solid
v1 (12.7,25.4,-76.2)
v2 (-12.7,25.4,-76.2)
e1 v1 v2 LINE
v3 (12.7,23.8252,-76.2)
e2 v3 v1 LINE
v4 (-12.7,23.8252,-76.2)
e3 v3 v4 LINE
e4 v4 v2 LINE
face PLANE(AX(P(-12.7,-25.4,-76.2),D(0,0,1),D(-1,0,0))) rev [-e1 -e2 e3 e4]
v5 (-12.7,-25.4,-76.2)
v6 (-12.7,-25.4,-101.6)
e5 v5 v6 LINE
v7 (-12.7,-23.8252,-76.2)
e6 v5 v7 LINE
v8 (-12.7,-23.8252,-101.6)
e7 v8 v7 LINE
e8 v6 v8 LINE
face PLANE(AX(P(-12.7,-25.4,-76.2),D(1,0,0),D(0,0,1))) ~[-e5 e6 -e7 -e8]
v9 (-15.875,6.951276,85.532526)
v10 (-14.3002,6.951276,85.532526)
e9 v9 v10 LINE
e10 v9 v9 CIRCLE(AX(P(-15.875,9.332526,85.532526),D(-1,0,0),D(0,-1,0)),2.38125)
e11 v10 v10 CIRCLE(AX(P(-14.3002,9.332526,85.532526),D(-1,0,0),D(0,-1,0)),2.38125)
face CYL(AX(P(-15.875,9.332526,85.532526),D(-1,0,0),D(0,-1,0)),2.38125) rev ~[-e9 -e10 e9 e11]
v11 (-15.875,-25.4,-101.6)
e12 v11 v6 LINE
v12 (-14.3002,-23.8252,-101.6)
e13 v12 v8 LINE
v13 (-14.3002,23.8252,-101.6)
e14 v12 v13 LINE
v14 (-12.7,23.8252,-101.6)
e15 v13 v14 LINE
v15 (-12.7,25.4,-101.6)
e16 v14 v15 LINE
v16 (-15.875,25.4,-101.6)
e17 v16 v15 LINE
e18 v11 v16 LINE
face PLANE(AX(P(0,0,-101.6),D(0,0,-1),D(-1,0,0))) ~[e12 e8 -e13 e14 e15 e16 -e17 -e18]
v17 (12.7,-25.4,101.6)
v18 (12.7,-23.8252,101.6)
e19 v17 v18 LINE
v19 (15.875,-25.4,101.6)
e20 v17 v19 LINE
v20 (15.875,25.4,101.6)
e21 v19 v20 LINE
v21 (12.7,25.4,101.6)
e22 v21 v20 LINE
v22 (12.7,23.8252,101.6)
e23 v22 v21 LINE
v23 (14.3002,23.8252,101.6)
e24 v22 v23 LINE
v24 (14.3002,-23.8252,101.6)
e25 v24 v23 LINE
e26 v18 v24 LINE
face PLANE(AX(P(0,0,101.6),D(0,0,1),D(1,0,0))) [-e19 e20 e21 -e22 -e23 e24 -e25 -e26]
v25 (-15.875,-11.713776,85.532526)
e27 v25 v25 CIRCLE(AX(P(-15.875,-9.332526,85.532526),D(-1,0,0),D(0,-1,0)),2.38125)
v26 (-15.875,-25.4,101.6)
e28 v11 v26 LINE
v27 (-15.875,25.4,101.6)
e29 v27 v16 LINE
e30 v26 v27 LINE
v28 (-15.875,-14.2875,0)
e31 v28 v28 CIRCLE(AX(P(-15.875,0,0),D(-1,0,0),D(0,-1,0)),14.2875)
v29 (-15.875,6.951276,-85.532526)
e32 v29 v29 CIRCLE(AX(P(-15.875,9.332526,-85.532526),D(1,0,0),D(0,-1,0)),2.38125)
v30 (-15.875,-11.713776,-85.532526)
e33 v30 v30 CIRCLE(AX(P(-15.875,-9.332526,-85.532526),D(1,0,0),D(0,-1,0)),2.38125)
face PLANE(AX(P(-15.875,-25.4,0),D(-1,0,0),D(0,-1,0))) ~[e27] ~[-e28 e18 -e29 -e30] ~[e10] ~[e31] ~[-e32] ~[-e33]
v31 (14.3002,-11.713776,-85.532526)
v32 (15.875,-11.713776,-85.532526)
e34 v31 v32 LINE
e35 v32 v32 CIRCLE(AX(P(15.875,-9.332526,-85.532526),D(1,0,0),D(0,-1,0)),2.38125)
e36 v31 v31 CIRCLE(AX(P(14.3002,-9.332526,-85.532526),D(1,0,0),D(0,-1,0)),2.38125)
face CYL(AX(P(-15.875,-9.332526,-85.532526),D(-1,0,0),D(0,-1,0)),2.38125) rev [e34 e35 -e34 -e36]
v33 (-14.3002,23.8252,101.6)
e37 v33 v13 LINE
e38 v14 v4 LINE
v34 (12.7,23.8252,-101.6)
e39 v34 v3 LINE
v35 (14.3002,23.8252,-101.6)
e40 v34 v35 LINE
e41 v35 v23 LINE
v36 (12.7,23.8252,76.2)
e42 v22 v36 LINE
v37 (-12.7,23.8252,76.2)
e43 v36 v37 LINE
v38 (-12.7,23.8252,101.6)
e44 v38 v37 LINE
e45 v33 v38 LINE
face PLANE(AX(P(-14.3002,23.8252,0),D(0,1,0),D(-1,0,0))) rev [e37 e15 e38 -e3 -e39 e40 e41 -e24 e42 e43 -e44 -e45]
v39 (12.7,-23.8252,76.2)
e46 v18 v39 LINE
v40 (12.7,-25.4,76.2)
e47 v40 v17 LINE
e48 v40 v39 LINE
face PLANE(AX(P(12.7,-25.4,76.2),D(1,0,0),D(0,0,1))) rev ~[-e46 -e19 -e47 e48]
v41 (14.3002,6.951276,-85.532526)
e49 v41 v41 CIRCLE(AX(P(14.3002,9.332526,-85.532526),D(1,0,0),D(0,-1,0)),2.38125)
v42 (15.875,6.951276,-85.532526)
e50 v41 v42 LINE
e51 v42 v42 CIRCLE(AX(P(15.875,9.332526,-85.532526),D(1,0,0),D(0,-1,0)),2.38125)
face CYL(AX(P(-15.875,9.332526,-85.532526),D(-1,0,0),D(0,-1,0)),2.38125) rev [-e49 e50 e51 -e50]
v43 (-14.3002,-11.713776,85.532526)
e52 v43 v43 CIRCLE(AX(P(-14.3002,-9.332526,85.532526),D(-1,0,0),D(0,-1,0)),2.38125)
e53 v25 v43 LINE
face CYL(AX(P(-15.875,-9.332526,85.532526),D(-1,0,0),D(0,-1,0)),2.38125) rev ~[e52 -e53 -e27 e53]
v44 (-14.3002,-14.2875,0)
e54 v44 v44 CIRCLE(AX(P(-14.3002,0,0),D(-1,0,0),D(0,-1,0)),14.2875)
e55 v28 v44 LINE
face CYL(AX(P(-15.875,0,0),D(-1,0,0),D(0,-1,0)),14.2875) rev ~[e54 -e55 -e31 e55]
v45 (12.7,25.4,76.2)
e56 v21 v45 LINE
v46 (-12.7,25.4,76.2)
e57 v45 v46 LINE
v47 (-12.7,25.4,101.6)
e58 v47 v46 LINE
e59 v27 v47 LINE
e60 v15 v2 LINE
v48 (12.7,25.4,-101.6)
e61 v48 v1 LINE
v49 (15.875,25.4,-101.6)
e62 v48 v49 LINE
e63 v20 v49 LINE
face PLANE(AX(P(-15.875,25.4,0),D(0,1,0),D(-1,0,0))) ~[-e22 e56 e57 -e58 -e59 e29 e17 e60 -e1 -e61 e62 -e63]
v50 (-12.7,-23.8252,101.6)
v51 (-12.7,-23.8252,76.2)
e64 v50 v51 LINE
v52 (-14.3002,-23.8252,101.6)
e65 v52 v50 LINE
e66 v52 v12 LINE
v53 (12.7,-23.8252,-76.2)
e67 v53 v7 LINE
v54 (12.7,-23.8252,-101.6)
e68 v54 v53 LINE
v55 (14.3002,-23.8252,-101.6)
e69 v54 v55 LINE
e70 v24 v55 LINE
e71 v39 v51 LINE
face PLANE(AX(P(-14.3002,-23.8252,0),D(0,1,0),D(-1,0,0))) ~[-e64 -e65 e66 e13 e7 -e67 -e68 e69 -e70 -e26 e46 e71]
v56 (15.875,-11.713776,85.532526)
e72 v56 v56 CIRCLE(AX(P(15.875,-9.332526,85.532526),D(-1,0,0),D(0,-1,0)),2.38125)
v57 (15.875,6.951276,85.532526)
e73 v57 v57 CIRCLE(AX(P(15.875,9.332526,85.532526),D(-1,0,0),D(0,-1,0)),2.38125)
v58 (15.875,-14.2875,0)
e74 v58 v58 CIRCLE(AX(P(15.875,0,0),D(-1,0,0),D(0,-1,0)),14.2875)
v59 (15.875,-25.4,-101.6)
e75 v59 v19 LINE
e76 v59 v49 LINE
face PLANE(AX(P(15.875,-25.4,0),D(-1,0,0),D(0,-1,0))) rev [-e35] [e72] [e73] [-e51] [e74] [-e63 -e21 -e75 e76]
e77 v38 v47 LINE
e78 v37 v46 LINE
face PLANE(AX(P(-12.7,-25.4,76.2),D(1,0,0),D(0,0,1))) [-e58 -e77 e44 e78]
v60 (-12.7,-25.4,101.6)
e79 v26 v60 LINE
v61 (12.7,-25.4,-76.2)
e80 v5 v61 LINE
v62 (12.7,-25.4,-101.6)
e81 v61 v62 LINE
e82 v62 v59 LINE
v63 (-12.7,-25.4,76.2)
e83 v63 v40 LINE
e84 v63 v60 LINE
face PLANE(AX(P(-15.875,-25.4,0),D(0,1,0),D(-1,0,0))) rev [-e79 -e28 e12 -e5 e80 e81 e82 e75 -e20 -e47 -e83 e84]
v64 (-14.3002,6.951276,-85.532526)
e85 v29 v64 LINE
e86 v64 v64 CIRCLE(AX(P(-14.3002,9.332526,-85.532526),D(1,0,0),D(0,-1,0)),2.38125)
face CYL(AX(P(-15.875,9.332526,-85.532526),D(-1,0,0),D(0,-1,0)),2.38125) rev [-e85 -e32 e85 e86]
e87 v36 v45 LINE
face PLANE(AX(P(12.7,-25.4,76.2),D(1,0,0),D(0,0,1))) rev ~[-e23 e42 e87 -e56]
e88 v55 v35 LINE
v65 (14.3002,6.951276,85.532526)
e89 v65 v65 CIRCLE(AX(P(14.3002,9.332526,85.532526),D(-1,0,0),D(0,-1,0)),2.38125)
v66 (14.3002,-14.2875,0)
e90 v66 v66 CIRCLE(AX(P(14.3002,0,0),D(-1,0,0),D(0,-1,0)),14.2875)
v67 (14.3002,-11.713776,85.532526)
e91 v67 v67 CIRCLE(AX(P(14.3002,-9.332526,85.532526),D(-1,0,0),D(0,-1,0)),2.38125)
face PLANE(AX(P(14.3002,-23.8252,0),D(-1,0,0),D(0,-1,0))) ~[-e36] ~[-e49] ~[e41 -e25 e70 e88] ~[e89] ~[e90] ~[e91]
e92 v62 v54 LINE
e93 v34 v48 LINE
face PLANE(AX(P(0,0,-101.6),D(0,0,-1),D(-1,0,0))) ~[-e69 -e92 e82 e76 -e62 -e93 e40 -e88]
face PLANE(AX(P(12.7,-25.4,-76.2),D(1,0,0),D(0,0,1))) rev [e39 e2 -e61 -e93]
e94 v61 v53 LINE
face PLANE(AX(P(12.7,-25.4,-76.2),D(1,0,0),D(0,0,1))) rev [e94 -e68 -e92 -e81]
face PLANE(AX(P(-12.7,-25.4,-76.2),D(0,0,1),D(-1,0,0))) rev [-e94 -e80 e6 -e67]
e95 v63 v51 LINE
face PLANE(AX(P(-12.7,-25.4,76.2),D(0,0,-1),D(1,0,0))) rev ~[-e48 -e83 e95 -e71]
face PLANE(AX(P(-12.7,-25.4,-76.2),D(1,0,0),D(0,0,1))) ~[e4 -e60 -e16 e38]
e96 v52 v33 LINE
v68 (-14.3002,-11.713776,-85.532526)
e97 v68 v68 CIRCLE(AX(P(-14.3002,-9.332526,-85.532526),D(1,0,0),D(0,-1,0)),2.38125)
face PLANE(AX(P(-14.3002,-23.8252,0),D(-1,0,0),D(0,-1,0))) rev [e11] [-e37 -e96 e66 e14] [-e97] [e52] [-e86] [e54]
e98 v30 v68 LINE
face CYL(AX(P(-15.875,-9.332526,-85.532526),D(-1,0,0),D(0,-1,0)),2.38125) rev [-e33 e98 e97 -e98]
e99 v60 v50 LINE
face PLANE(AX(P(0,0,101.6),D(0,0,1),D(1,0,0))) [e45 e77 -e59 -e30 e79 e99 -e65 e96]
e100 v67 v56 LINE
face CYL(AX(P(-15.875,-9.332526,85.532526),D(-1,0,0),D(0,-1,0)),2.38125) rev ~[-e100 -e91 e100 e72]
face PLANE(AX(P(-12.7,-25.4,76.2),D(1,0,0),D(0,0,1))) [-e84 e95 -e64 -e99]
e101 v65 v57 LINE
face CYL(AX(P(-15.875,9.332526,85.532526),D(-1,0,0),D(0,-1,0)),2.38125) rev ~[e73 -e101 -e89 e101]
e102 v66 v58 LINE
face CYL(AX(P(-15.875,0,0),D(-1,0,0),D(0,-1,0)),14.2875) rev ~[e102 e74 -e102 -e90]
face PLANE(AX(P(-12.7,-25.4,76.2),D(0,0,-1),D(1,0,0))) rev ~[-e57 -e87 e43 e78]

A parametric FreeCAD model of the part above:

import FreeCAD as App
import Part
import Sketcher

V = App.Vector
Q = App.Units.Quantity

doc = App.newDocument("Part")
body = doc.addObject("PartDesign::Body", "Body")

# Sketch on XY plane
sketch1 = body.newObject("Sketcher::SketchObject", "Sketch")
sketch1.AttachmentSupport = (doc.getObject("XY_Plane"), [""])
sketch1.MapMode = "FlatFace"
sketch1.addGeometry(Part.LineSegment(V(-16, 25, 0), V(-16, -25, 0)), False)
sketch1.addGeometry(Part.LineSegment(V(-16, -25, 0), V(16, -25, 0)), False)
sketch1.addGeometry(Part.LineSegment(V(16, -25, 0), V(16, 25, 0)), False)
sketch1.addGeometry(Part.LineSegment(V(16, 25, 0), V(-16, 25, 0)), False)
sketch1.addGeometry(Part.LineSegment(V(14, -24, 0), V(-14, -24, 0)), False)
sketch1.addGeometry(Part.LineSegment(V(-14, -24, 0), V(-14, 24, 0)), False)
sketch1.addGeometry(Part.LineSegment(V(-14, 24, 0), V(14, 24, 0)), False)
sketch1.addGeometry(Part.LineSegment(V(14, 24, 0), V(14, -24, 0)), False)
sketch1.addConstraint(Sketcher.Constraint("Coincident", 0, 2, 1, 1))
sketch1.addConstraint(Sketcher.Constraint("Coincident", 1, 2, 2, 1))
sketch1.addConstraint(Sketcher.Constraint("Coincident", 2, 2, 3, 1))
sketch1.addConstraint(Sketcher.Constraint("Coincident", 3, 2, 0, 1))
sketch1.addConstraint(Sketcher.Constraint("Coincident", 4, 2, 5, 1))
sketch1.addConstraint(Sketcher.Constraint("Coincident", 5, 2, 6, 1))
sketch1.addConstraint(Sketcher.Constraint("Coincident", 6, 2, 7, 1))
sketch1.addConstraint(Sketcher.Constraint("Coincident", 7, 2, 4, 1))
sketch1.addConstraint(Sketcher.Constraint("Vertical", 0))
sketch1.addConstraint(Sketcher.Constraint("Horizontal", 1))
sketch1.addConstraint(Sketcher.Constraint("Vertical", 2))
sketch1.addConstraint(Sketcher.Constraint("Horizontal", 3))
sketch1.addConstraint(Sketcher.Constraint("Horizontal", 4))
sketch1.addConstraint(Sketcher.Constraint("Vertical", 5))
sketch1.addConstraint(Sketcher.Constraint("Horizontal", 6))
sketch1.addConstraint(Sketcher.Constraint("Vertical", 7))
sketch1.addConstraint(Sketcher.Constraint("Symmetric", 0, 2, 2, 2, -1, 1))
sketch1.addConstraint(Sketcher.Constraint("Symmetric", 4, 2, 6, 2, -1, 1))
sketch1.addConstraint(Sketcher.Constraint("DistanceY", 0, 2, 0, 1, Q("2 in")))
sketch1.addConstraint(Sketcher.Constraint("DistanceX", 1, 1, 1, 2, Q("1.25 in")))
sketch1.addConstraint(Sketcher.Constraint("DistanceX", 4, 2, 4, 1, Q("1.126 in")))
sketch1.addConstraint(Sketcher.Constraint("DistanceY", 5, 1, 5, 2, Q("1.876 in")))
pad1 = body.newObject("PartDesign::Pad", "Pad")
pad1.Profile = sketch1
pad1.Length = Q("4 in")

# Sketch on XZ plane
sketch2 = body.newObject("Sketcher::SketchObject", "Sketch001")
sketch2.AttachmentSupport = (doc.getObject("XZ_Plane"), [""])
sketch2.MapMode = "FlatFace"
sketch2.AttachmentOffset = App.Placement(V(0, 0, 1 * 25.4), App.Rotation())
sketch2.addGeometry(Part.LineSegment(V(-13, 102, 0), V(-13, 76, 0)), False)
sketch2.addGeometry(Part.LineSegment(V(-13, 76, 0), V(13, 76, 0)), False)
sketch2.addGeometry(Part.LineSegment(V(13, 76, 0), V(13, 102, 0)), False)
sketch2.addGeometry(Part.LineSegment(V(13, 102, 0), V(-13, 102, 0)), False)
sketch2.addConstraint(Sketcher.Constraint("Coincident", 0, 2, 1, 1))
sketch2.addConstraint(Sketcher.Constraint("Coincident", 1, 2, 2, 1))
sketch2.addConstraint(Sketcher.Constraint("Coincident", 2, 2, 3, 1))
sketch2.addConstraint(Sketcher.Constraint("Coincident", 3, 2, 0, 1))
sketch2.addConstraint(Sketcher.Constraint("Vertical", 0))
sketch2.addConstraint(Sketcher.Constraint("Horizontal", 1))
sketch2.addConstraint(Sketcher.Constraint("Vertical", 2))
sketch2.addConstraint(Sketcher.Constraint("Horizontal", 3))
sketch2.addConstraint(Sketcher.Constraint("Equal", 3, 0))
sketch2.addConstraint(Sketcher.Constraint("DistanceX", 1, 1, 1, 2, Q("1 in")))
sketch2.addConstraint(Sketcher.Constraint("DistanceY", -1, 1, 0, 2, Q("3 in")))
sketch2.addConstraint(Sketcher.Constraint("DistanceX", 0, 2, -1, 1, Q("0.5 in")))
pocket1 = body.newObject("PartDesign::Pocket", "Pocket")
pocket1.Profile = sketch2
pocket1.Type = "ThroughAll"

# Sketch on YZ plane
sketch3 = body.newObject("Sketcher::SketchObject", "Sketch002")
sketch3.AttachmentSupport = (doc.getObject("YZ_Plane"), [""])
sketch3.MapMode = "FlatFace"
sketch3.AttachmentOffset = App.Placement(V(0, 0, -0.625 * 25.4), App.Rotation())
sketch3.addGeometry(Part.Circle(V(9.3, 85.5, 0), V(0, 0, 1), 2.4), False)
sketch3.addGeometry(Part.Circle(V(-9.3, 85.5, 0), V(0, 0, 1), 2.4), False)
sketch3.addConstraint(Sketcher.Constraint("Equal", 0, 1))
sketch3.addConstraint(Sketcher.Constraint("Symmetric", 0, 3, 1, 3, -2))
sketch3.addConstraint(Sketcher.Constraint("Diameter", 0, Q("0.1875 in")))
sketch3.addConstraint(Sketcher.Constraint("DistanceX", 1, 3, 0, 3, Q("18.665052 mm")))
sketch3.addConstraint(Sketcher.Constraint("DistanceY", -1, 1, 0, 3, Q("85.532526 mm")))
pocket2 = body.newObject("PartDesign::Pocket", "Pocket001")
pocket2.Profile = sketch3
pocket2.Type = "ThroughAll"
pocket2.Reversed = True
body2 = doc.addObject("PartDesign::Body", "Body001")
doc.recompute()

body2.BaseFeature = body
doc.recompute()

mirroring = doc.addObject("Part::Mirroring", "Mirroring")
mirroring.Source = body
mirroring.Base = V(0, 0, 0)
mirroring.Normal = V(0, 0, 1)
body3 = doc.addObject("PartDesign::Body", "Body002")
body3.BaseFeature = mirroring
boolean = body2.newObject("PartDesign::Boolean", "Boolean")
boolean.Type = "Fuse"
boolean.addObjects([body3])
doc.recompute()

# Sketch on YZ plane
sketch4 = body2.newObject("Sketcher::SketchObject", "Sketch003")
sketch4.AttachmentSupport = (doc.getObject("YZ_Plane001"), [""])
sketch4.MapMode = "FlatFace"
sketch4.AttachmentOffset = App.Placement(V(0, 0, -0.625 * 25.4), App.Rotation())
sketch4.addGeometry(Part.Circle(V(0, 0, 0), V(0, 0, 1), 14), False)
sketch4.addConstraint(Sketcher.Constraint("Coincident", 0, 3, -1, 1))
sketch4.addConstraint(Sketcher.Constraint("Diameter", 0, Q("1.125 in")))
pocket3 = body2.newObject("PartDesign::Pocket", "Pocket002")
pocket3.Profile = sketch4
pocket3.Type = "ThroughAll"
pocket3.Reversed = True
mirroring.Visibility = False

doc.recompute()
